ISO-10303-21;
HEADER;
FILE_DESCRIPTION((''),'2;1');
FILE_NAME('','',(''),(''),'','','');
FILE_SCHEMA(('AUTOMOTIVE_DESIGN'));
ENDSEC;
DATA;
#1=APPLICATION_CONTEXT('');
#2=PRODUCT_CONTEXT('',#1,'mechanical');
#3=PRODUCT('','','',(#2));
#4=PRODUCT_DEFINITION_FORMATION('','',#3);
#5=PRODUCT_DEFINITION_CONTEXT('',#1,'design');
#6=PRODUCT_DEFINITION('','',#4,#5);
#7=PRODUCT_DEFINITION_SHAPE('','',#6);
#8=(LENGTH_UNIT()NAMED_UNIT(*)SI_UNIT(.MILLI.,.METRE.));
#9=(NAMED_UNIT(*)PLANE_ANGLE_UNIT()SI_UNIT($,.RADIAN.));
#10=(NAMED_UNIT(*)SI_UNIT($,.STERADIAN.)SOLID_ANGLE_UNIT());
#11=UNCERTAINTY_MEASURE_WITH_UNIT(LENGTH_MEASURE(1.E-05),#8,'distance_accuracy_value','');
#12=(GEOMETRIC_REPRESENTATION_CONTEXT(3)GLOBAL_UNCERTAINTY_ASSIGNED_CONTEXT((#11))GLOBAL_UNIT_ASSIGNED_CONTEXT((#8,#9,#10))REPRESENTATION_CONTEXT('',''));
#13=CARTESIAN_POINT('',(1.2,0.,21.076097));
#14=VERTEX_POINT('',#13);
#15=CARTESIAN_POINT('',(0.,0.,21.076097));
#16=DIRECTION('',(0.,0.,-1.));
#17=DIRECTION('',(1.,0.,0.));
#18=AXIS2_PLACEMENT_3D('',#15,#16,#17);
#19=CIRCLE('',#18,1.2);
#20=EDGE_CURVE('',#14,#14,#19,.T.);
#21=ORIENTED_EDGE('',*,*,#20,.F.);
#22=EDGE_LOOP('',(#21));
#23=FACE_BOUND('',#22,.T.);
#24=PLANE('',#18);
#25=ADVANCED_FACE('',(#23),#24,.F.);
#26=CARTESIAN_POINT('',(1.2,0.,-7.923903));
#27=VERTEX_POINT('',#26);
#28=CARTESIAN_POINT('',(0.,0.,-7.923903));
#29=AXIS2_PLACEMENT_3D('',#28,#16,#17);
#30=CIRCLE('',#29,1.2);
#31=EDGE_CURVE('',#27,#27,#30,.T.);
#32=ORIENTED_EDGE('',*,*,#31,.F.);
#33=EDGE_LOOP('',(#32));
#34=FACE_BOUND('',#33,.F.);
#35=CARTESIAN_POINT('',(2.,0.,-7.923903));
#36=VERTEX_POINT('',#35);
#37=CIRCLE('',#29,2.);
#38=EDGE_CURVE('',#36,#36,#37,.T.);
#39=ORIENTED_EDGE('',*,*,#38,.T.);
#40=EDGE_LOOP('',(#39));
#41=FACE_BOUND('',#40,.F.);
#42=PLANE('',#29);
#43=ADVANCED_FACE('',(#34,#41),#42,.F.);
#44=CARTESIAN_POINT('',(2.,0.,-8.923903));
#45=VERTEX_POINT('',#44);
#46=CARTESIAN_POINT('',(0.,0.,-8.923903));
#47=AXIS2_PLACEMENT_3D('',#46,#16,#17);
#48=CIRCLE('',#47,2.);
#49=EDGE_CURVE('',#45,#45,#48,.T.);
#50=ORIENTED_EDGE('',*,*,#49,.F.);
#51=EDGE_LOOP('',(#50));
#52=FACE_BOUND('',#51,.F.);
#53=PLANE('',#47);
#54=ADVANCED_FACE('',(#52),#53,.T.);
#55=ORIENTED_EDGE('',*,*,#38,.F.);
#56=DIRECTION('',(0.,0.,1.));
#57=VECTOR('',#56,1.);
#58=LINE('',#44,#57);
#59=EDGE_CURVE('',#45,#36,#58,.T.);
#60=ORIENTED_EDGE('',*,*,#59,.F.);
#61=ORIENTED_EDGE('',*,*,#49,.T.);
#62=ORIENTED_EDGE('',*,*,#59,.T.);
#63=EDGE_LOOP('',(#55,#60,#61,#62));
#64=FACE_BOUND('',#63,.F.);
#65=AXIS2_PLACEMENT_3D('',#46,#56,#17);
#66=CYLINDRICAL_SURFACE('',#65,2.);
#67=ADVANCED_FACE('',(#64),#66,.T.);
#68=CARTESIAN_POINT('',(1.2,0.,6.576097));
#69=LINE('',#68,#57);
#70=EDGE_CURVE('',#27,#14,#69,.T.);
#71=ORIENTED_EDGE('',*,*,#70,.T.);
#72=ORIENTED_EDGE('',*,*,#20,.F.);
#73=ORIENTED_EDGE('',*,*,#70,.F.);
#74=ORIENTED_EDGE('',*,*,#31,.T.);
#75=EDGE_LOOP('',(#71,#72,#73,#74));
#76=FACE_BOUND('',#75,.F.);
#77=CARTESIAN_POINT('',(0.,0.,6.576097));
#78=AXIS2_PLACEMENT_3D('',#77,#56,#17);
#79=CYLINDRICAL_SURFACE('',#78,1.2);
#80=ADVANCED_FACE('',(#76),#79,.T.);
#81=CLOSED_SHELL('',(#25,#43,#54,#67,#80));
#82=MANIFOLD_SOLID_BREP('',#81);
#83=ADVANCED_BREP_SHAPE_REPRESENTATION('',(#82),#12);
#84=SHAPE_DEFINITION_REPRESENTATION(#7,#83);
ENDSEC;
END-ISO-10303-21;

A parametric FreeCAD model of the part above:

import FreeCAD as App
import Part
import Sketcher
from FreeCAD import Vector

doc = App.newDocument("Part")
body = doc.addObject("PartDesign::Body", "Body")

# Sketch on XZ plane
sketch1 = body.newObject("Sketcher::SketchObject", "Sketch")
sketch1.AttachmentSupport = (doc.getObject("XZ_Plane"), [""])
sketch1.MapMode = "FlatFace"
sketch1.addGeometry([
    Part.LineSegment(Vector(0, -8.9, 0), Vector(2, -8.9, 0)),  # 0
    Part.LineSegment(Vector(2, -8.9, 0), Vector(2, -7.9, 0)),  # 1
    Part.LineSegment(Vector(2, -7.9, 0), Vector(1.2, -7.9, 0)),  # 2
    Part.LineSegment(Vector(1.2, -7.9, 0), Vector(1.2, 21.1, 0)),  # 3
    Part.LineSegment(Vector(1.2, 21.1, 0), Vector(0, 21.1, 0)),  # 4
    Part.LineSegment(Vector(0, 21.1, 0), Vector(0, -8.9, 0)),  # 5
], False)
sketch1.addConstraint([
    Sketcher.Constraint("Coincident", 0, 2, 1, 1),
    Sketcher.Constraint("Coincident", 1, 2, 2, 1),
    Sketcher.Constraint("Coincident", 2, 2, 3, 1),
    Sketcher.Constraint("Coincident", 3, 2, 4, 1),
    Sketcher.Constraint("Coincident", 4, 2, 5, 1),
    Sketcher.Constraint("Coincident", 5, 2, 0, 1),
    Sketcher.Constraint("Horizontal", 0),
    Sketcher.Constraint("Vertical", 1),
    Sketcher.Constraint("Horizontal", 2),
    Sketcher.Constraint("Vertical", 3),
    Sketcher.Constraint("Horizontal", 4),
    Sketcher.Constraint("Vertical", 5),
    Sketcher.Constraint("PointOnObject", 4, 2, -2),
    Sketcher.Constraint("DistanceX", 0, 1, 0, 2, 2.0),
    Sketcher.Constraint("DistanceY", 1, 1, 1, 2, 1.0),
    Sketcher.Constraint("DistanceY", 3, 1, 3, 2, 29.0),
    Sketcher.Constraint("DistanceX", 2, 2, 2, 1, 0.8),
    Sketcher.Constraint("DistanceY", 0, 2, -1, 1, 8.923903),
])
revolution = body.newObject("PartDesign::Revolution", "Revolution")
revolution.Profile = sketch1
revolution.ReferenceAxis = (sketch1, ["V_Axis"])
revolution.Angle = 360

doc.recompute()
